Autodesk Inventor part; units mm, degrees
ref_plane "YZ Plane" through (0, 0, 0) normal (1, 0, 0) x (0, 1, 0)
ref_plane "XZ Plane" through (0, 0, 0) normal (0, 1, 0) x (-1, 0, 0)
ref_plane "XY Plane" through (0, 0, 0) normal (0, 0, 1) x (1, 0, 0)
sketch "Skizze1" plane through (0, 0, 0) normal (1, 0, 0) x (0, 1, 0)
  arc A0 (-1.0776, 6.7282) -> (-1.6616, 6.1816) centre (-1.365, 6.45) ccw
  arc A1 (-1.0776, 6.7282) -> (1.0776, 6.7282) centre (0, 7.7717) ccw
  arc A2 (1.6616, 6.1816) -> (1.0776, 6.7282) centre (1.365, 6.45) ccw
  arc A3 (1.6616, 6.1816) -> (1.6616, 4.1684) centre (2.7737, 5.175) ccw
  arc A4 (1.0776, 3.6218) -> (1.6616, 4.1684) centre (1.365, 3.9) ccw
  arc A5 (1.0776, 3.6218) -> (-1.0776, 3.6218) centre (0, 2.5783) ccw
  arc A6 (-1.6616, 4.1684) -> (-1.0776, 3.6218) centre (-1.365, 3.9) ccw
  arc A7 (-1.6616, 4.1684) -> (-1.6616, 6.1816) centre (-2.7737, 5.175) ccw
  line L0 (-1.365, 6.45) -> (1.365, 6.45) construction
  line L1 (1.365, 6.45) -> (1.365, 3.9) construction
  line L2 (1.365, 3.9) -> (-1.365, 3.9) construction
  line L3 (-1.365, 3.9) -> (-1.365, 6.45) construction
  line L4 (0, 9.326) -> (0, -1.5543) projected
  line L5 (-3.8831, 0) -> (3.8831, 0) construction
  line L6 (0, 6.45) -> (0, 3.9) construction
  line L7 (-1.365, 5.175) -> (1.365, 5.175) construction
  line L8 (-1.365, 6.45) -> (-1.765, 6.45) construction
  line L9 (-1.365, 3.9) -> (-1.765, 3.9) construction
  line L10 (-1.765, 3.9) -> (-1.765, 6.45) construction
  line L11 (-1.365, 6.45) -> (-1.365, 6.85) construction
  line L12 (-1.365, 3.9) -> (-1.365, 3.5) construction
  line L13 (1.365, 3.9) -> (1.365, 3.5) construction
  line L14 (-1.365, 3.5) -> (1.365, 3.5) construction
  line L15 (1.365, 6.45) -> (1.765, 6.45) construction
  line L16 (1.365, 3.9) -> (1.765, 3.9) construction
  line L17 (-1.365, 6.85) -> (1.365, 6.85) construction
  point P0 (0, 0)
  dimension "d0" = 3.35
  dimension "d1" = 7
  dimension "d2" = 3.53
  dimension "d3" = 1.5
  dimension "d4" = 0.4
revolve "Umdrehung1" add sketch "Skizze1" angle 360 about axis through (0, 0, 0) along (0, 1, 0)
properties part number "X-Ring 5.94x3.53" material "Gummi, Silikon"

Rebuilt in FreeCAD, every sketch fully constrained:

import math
import FreeCAD as App
import Part
import Sketcher

V = App.Vector

doc = App.newDocument("Part")
body = doc.addObject("PartDesign::Body", "Body")

sketch1 = body.newObject("Sketcher::SketchObject", "Sketch")
sketch1.AttachmentSupport = (doc.getObject("YZ_Plane"), [""])
sketch1.MapMode = "FlatFace"
sketch1.addGeometry([
    Part.ArcOfCircle(Part.Circle(V(-1.36, 6.45, 0), V(0, 0, 1), 0.4), math.radians(44), math.radians(222)),
    Part.ArcOfCircle(Part.Circle(V(-2.77, 5.17, 0), V(0, 0, 1), 1.5), math.radians(-42), math.radians(42)),
    Part.ArcOfCircle(Part.Circle(V(-1.36, 3.9, 0), V(0, 0, 1), 0.4), math.radians(138), math.radians(316)),
    Part.ArcOfCircle(Part.Circle(V(0, 2.58, 0), V(0, 0, 1), 1.5), math.radians(44), math.radians(136)),
    Part.ArcOfCircle(Part.Circle(V(1.36, 3.9, 0), V(0, 0, 1), 0.4), math.radians(-136), math.radians(42)),
    Part.ArcOfCircle(Part.Circle(V(2.77, 5.17, 0), V(0, 0, 1), 1.5), math.radians(138), math.radians(222)),
    Part.ArcOfCircle(Part.Circle(V(1.36, 6.45, 0), V(0, 0, 1), 0.4), math.radians(-42), math.radians(136)),
    Part.ArcOfCircle(Part.Circle(V(0, 7.77, 0), V(0, 0, 1), 1.5), math.radians(-136), math.radians(-44)),
], False)
sketch1.addConstraint([
    Sketcher.Constraint("Tangent", 0, 2, 1, 2),
    Sketcher.Constraint("Tangent", 1, 1, 2, 1),
    Sketcher.Constraint("Tangent", 2, 2, 3, 2),
    Sketcher.Constraint("Tangent", 3, 1, 4, 1),
    Sketcher.Constraint("Tangent", 4, 2, 5, 2),
    Sketcher.Constraint("Tangent", 5, 1, 6, 1),
    Sketcher.Constraint("Tangent", 6, 2, 7, 2),
    Sketcher.Constraint("Tangent", 7, 1, 0, 1),
    Sketcher.Constraint("Equal", 0, 2),
    Sketcher.Constraint("Equal", 1, 3),
    Sketcher.Constraint("Equal", 2, 4),
    Sketcher.Constraint("Equal", 3, 5),
    Sketcher.Constraint("Equal", 4, 6),
    Sketcher.Constraint("Equal", 5, 7),
    Sketcher.Constraint("Symmetric", 2, 3, 4, 3, -2),
    Sketcher.Constraint("Symmetric", 0, 3, 6, 3, -2),
    Sketcher.Constraint("Vertical", 0, 3, 2, 3),
    Sketcher.Constraint("Radius", 0, 0.4),
    Sketcher.Constraint("Radius", 1, 1.5),
    Sketcher.Constraint("DistanceY", -1, 1, 2, 3, 3.9),
    Sketcher.Constraint("DistanceY", -1, 1, 0, 3, 6.45),
    Sketcher.Constraint("DistanceX", 2, 3, 4, 3, 2.73),
])
revolution = body.newObject("PartDesign::Revolution", "Revolution")
revolution.Profile = sketch1
revolution.ReferenceAxis = (sketch1, ["H_Axis"])
revolution.Angle = 360

doc.recompute()
